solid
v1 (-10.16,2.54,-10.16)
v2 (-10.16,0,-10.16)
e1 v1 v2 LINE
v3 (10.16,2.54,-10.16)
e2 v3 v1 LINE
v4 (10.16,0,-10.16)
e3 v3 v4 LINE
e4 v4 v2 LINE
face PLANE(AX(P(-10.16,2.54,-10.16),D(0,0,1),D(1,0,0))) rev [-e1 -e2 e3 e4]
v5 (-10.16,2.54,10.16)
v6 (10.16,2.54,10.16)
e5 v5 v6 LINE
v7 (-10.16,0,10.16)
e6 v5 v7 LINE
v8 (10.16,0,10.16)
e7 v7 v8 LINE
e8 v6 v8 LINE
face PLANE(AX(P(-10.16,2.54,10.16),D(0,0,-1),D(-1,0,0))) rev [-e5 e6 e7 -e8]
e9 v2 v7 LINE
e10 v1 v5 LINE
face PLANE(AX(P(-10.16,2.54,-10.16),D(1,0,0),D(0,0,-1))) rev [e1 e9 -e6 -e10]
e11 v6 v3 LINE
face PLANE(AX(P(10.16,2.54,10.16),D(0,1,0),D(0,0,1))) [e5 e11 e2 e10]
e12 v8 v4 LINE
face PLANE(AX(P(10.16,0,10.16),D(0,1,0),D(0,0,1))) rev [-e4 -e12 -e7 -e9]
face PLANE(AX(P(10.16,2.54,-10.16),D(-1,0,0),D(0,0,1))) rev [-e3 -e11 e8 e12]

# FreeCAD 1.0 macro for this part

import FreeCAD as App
import Part
import Sketcher

V = App.Vector
Q = App.Units.Quantity

doc = App.newDocument("Part")
params = doc.addObject("Spreadsheet::Sheet", "Params")
for row, (alias, value) in enumerate([
    ("sketch1_width", "0.8 in"),
    ("pad1_length", "0.1 in"),
], start=1):
    params.set(f"A{row}", alias)
    params.set(f"B{row}", "=" + value)
    params.setAlias(f"B{row}", alias)

body = doc.addObject("PartDesign::Body", "Body")

sketch1 = doc.addObject("Sketcher::SketchObject", "Sketch")
body.addObject(sketch1)
sketch1.AttachmentSupport = (doc.XZ_Plane, [""])
sketch1.MapMode = "FlatFace"
sketch1.addGeometry(Part.LineSegment(V(-10, -10, 0), V(-10, 10, 0)), False)
sketch1.addGeometry(Part.LineSegment(V(-10, 10, 0), V(10, 10, 0)), False)
sketch1.addGeometry(Part.LineSegment(V(10, 10, 0), V(10, -10, 0)), False)
sketch1.addGeometry(Part.LineSegment(V(10, -10, 0), V(-10, -10, 0)), False)
sketch1.addConstraint(Sketcher.Constraint("Coincident", 0, 2, 1, 1))
sketch1.addConstraint(Sketcher.Constraint("Coincident", 1, 2, 2, 1))
sketch1.addConstraint(Sketcher.Constraint("Coincident", 2, 2, 3, 1))
sketch1.addConstraint(Sketcher.Constraint("Coincident", 3, 2, 0, 1))
sketch1.addConstraint(Sketcher.Constraint("Vertical", 0))
sketch1.addConstraint(Sketcher.Constraint("Horizontal", 1))
sketch1.addConstraint(Sketcher.Constraint("Vertical", 2))
sketch1.addConstraint(Sketcher.Constraint("Horizontal", 3))
sketch1.addConstraint(Sketcher.Constraint("Symmetric", 0, 2, 2, 2, -1, 1))
sketch1.addConstraint(Sketcher.Constraint("Equal", 3, 0))
sketch1.addConstraint(Sketcher.Constraint("DistanceX", 1, 1, 1, 2, Q("0.8 in")))
sketch1.setExpression("Constraints[10]", "Params.sketch1_width")
pad1 = doc.addObject("PartDesign::Pad", "Pad")
body.addObject(pad1)
pad1.Profile = sketch1
pad1.setExpression("Length", "Params.pad1_length")
pad1.Reversed = True

doc.recompute()
